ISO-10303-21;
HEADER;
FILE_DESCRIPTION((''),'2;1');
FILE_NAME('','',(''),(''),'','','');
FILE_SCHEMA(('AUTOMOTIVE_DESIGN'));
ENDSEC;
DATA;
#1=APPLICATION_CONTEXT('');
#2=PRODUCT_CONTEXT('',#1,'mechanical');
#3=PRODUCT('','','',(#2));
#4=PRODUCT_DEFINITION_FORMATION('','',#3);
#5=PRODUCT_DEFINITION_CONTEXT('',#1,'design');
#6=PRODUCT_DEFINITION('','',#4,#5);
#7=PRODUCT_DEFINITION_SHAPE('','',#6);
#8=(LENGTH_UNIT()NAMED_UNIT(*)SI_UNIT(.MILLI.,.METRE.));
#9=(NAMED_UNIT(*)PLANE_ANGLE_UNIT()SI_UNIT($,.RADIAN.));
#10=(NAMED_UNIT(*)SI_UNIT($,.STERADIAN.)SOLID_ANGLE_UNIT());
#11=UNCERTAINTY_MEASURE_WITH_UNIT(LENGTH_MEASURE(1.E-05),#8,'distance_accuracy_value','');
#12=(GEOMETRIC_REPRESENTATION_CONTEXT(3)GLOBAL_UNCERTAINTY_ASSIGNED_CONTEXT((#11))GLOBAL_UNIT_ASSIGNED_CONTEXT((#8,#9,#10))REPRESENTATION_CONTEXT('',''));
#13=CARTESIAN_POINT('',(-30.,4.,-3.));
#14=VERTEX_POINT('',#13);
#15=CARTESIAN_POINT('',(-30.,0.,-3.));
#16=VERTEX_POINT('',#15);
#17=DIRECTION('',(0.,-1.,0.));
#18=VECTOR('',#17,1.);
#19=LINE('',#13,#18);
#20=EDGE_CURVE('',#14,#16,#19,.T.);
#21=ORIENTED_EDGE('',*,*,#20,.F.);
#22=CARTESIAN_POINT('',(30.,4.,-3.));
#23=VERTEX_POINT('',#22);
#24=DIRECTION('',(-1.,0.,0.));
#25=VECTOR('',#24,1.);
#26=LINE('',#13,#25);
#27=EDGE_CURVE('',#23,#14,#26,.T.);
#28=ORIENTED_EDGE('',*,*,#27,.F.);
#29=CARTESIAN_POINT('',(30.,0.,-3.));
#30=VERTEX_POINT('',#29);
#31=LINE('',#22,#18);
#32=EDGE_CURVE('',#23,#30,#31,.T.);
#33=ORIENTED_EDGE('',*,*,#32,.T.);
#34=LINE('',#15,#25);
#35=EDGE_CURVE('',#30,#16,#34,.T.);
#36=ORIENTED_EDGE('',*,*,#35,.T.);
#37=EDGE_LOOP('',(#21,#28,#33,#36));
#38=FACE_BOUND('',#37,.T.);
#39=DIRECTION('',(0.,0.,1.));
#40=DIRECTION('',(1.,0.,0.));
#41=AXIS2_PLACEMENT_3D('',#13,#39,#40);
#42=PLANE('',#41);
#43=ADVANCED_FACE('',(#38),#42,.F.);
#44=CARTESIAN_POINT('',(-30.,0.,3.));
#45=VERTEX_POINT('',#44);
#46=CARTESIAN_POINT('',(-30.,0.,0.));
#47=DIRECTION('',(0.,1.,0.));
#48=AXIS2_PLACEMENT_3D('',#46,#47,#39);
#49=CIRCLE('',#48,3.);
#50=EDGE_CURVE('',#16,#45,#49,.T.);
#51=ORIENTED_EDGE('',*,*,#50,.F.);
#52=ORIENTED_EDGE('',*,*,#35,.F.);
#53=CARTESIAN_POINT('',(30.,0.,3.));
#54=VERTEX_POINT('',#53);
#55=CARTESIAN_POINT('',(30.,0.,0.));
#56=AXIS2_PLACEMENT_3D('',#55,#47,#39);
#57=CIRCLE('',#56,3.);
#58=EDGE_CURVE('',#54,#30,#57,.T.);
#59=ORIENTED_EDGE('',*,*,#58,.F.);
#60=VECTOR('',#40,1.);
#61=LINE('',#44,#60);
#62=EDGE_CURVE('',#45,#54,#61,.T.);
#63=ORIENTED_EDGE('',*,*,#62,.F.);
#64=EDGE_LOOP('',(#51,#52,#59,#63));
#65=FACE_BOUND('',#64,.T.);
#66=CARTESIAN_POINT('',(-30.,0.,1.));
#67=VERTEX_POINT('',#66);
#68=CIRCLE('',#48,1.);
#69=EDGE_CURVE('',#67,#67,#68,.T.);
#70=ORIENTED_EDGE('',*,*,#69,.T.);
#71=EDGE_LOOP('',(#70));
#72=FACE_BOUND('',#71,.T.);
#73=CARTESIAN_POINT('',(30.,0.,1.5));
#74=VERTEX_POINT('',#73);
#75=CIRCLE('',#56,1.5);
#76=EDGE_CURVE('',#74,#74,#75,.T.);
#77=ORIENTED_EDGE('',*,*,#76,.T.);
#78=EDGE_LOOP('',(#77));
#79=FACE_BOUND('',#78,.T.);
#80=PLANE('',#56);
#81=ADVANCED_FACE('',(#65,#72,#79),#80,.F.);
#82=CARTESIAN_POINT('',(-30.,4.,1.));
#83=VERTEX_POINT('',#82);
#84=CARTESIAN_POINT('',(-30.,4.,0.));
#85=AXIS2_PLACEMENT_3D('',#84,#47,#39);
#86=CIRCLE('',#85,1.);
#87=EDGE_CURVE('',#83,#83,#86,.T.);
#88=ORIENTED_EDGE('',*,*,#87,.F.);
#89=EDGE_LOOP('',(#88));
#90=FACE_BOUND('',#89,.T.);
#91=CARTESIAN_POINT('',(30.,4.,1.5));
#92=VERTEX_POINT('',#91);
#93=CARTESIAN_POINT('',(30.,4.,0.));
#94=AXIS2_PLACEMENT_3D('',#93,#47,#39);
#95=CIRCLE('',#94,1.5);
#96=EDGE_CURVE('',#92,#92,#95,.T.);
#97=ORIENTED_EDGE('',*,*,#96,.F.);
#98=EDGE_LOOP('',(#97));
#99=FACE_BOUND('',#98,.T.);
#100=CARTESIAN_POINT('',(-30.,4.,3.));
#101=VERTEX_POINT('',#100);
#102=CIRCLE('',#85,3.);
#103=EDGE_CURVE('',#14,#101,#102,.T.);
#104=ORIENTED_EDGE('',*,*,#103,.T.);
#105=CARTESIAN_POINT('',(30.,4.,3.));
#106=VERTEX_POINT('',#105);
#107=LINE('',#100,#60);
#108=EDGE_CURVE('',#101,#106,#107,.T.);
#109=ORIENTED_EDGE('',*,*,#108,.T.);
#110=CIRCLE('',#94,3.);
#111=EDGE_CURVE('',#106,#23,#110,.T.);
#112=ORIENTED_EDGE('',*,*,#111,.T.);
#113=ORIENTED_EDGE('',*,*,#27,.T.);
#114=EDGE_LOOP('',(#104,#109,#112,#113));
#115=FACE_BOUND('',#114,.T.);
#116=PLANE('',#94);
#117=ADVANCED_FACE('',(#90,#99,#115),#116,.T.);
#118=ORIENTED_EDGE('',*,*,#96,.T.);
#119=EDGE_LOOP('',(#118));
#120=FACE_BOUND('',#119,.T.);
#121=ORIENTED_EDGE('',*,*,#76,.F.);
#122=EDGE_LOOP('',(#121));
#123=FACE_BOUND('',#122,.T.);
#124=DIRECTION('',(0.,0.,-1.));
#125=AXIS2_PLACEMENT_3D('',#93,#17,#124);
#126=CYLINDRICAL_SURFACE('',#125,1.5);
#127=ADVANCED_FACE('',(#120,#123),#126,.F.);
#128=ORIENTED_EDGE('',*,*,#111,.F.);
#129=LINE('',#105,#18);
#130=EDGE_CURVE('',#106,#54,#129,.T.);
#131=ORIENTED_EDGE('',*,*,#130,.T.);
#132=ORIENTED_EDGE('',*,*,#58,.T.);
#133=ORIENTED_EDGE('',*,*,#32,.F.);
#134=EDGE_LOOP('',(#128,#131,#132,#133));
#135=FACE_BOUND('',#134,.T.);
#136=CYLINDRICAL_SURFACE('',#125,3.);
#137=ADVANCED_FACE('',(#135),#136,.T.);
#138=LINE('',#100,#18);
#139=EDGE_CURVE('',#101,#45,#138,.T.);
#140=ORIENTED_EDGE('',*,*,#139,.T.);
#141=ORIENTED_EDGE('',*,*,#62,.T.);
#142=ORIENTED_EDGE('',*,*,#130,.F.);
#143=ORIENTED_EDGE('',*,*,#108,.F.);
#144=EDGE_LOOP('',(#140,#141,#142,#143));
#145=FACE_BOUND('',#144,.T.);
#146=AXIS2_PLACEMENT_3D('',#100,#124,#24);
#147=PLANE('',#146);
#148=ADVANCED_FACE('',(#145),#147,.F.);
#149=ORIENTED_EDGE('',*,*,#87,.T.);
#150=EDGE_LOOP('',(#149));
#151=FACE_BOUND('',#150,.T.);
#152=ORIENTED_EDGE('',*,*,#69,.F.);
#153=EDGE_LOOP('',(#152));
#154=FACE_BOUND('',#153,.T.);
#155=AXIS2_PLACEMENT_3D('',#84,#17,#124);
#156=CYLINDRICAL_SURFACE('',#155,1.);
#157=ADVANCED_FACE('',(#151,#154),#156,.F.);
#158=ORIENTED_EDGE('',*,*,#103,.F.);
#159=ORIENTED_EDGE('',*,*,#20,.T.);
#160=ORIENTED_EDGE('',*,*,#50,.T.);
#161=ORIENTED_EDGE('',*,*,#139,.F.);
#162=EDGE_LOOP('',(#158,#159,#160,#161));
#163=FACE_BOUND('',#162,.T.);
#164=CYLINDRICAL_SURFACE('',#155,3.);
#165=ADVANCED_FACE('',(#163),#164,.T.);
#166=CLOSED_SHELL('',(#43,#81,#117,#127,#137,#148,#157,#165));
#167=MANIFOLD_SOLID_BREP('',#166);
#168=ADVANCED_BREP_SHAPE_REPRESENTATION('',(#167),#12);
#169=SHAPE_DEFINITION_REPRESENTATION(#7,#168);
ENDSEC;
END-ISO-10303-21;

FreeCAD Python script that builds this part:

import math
import FreeCAD as App
import Part
import Sketcher
Q = App.Units.Quantity

doc = App.newDocument("Part")
body = doc.addObject("PartDesign::Body", "Body")

# Sketch on XZ plane
sketch1 = doc.addObject("Sketcher::SketchObject", "Sketch")
body.addObject(sketch1)
sketch1.AttachmentSupport = (doc.XZ_Plane, [""])
sketch1.MapMode = "FlatFace"
sketch1.addGeometry(Part.LineSegment(App.Vector(30, -3, 0), App.Vector(-30, -3, 0)), False)
sketch1.addGeometry(Part.ArcOfCircle(Part.Circle(App.Vector(-30, 0, 0), App.Vector(0, 0, 1), 3), math.radians(90), math.radians(270)), False)
sketch1.addGeometry(Part.LineSegment(App.Vector(-30, 3, 0), App.Vector(30, 3, 0)), False)
sketch1.addGeometry(Part.ArcOfCircle(Part.Circle(App.Vector(30, 0, 0), App.Vector(0, 0, 1), 3), math.radians(-90), math.radians(90)), False)
sketch1.addGeometry(Part.Circle(App.Vector(30, 0, 0), App.Vector(0, 0, 1), 1.5), False)
sketch1.addGeometry(Part.Circle(App.Vector(-30, 0, 0), App.Vector(0, 0, 1), 1), False)
sketch1.addConstraint(Sketcher.Constraint("Tangent", 0, 2, 1, 2))
sketch1.addConstraint(Sketcher.Constraint("Tangent", 1, 1, 2, 1))
sketch1.addConstraint(Sketcher.Constraint("Tangent", 2, 2, 3, 2))
sketch1.addConstraint(Sketcher.Constraint("Tangent", 3, 1, 0, 1))
sketch1.addConstraint(Sketcher.Constraint("Horizontal", 0))
sketch1.addConstraint(Sketcher.Constraint("Horizontal", 2))
sketch1.addConstraint(Sketcher.Constraint("Coincident", 4, 3, 3, 3))
sketch1.addConstraint(Sketcher.Constraint("Coincident", 5, 3, 1, 3))
sketch1.addConstraint(Sketcher.Constraint("Symmetric", 1, 3, 3, 3, -1, 1))
sketch1.addConstraint(Sketcher.Constraint("Diameter", 4, Q("3 mm")))
sketch1.addConstraint(Sketcher.Constraint("Diameter", 5, Q("2 mm")))
sketch1.addConstraint(Sketcher.Constraint("Radius", 1, Q("3 mm")))
sketch1.addConstraint(Sketcher.Constraint("DistanceX", 0, 2, 0, 1, Q("60 mm")))
pad1 = doc.addObject("PartDesign::Pad", "Pad")
body.addObject(pad1)
pad1.Profile = sketch1
pad1.Length = 4
pad1.Reversed = True

doc.recompute()
